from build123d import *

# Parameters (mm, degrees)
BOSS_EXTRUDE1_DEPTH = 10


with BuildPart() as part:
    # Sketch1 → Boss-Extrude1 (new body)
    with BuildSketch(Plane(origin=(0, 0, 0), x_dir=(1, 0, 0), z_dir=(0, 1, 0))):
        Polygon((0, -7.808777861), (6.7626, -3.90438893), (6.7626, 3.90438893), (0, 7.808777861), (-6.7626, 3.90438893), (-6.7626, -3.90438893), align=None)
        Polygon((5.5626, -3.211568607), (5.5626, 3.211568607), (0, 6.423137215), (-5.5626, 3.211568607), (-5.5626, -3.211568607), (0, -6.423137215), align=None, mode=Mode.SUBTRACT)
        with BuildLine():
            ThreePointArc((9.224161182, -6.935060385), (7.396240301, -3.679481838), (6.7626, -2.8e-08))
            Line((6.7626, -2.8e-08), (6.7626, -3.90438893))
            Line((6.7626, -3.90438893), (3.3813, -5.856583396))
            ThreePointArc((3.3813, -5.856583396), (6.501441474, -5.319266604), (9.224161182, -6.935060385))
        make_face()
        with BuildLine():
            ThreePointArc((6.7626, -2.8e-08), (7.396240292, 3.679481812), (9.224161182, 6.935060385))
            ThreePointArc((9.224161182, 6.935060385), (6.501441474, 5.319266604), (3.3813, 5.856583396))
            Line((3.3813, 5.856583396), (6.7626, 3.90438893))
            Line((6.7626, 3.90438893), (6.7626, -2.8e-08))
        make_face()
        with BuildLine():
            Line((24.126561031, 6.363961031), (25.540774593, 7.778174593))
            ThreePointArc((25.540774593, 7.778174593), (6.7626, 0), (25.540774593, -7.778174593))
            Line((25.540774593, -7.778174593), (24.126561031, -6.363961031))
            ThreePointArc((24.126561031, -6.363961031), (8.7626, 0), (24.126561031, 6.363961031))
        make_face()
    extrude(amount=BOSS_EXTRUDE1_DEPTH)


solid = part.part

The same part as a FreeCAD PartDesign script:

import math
import FreeCAD as App
import Part
import Sketcher
Q = App.Units.Quantity

doc = App.newDocument("Part")
params = doc.addObject("Spreadsheet::Sheet", "Params")
for row, (alias, value) in enumerate([
    ("sketch1_radius", "11 mm"),
    ("sketch1_radius2", "9 mm"),
    ("pad1_length", "10 mm"),
], start=1):
    params.set(f"A{row}", alias)
    params.set(f"B{row}", "=" + value)
    params.setAlias(f"B{row}", alias)

body = doc.addObject("PartDesign::Body", "Body")

# Sketch on XZ plane
sketch1 = doc.addObject("Sketcher::SketchObject", "Sketch")
body.addObject(sketch1)
sketch1.AttachmentSupport = (doc.XZ_Plane, [""])
sketch1.MapMode = "FlatFace"
sketch1.addGeometry([
    Part.LineSegment(App.Vector(0, 7.8, 0), App.Vector(3.4, 5.9, 0)),  # 0
    Part.ArcOfCircle(Part.Circle(App.Vector(5.7, 9.8, 0), App.Vector(0, 0, 1), 4.6), math.radians(-120), math.radians(-39)),  # 1
    Part.ArcOfCircle(Part.Circle(App.Vector(17.8, 0, 0), App.Vector(0, 0, 1), 11), math.radians(45), math.radians(141)),  # 2
    Part.LineSegment(App.Vector(25.5, 7.8, 0), App.Vector(24.1, 6.4, 0)),  # 3
    Part.ArcOfCircle(Part.Circle(App.Vector(17.8, 0, 0), App.Vector(0, 0, 1), 9), math.radians(45), math.radians(315)),  # 4
    Part.LineSegment(App.Vector(24.1, -6.4, 0), App.Vector(25.5, -7.8, 0)),  # 5
    Part.ArcOfCircle(Part.Circle(App.Vector(17.8, 0, 0), App.Vector(0, 0, 1), 11), math.radians(-141), math.radians(-45)),  # 6
    Part.ArcOfCircle(Part.Circle(App.Vector(5.7, -9.8, 0), App.Vector(0, 0, 1), 4.6), math.radians(39), math.radians(120)),  # 7
    Part.LineSegment(App.Vector(3.4, -5.9, 0), App.Vector(0, -7.8, 0)),  # 8
    Part.LineSegment(App.Vector(0, -7.8, 0), App.Vector(-6.8, -3.9, 0)),  # 9
    Part.LineSegment(App.Vector(-6.8, -3.9, 0), App.Vector(-6.8, 3.9, 0)),  # 10
    Part.LineSegment(App.Vector(-6.8, 3.9, 0), App.Vector(0, 7.8, 0)),  # 11
    Part.LineSegment(App.Vector(5.6, -3.2, 0), App.Vector(5.6, 3.2, 0)),  # 12
    Part.LineSegment(App.Vector(5.6, 3.2, 0), App.Vector(0, 6.4, 0)),  # 13
    Part.LineSegment(App.Vector(0, 6.4, 0), App.Vector(-5.6, 3.2, 0)),  # 14
    Part.LineSegment(App.Vector(-5.6, 3.2, 0), App.Vector(-5.6, -3.2, 0)),  # 15
    Part.LineSegment(App.Vector(-5.6, -3.2, 0), App.Vector(0, -6.4, 0)),  # 16
    Part.LineSegment(App.Vector(0, -6.4, 0), App.Vector(5.6, -3.2, 0)),  # 17
], False)
sketch1.addConstraint([
    Sketcher.Constraint("Tangent", 0, 2, 1, 1),
    Sketcher.Constraint("Tangent", 1, 2, 2, 2),
    Sketcher.Constraint("Coincident", 2, 1, 3, 1),
    Sketcher.Constraint("Coincident", 3, 2, 4, 1),
    Sketcher.Constraint("Coincident", 4, 2, 5, 1),
    Sketcher.Constraint("Coincident", 5, 2, 6, 2),
    Sketcher.Constraint("Tangent", 6, 1, 7, 1),
    Sketcher.Constraint("Tangent", 7, 2, 8, 1),
    Sketcher.Constraint("Coincident", 8, 2, 9, 1),
    Sketcher.Constraint("Coincident", 9, 2, 10, 1),
    Sketcher.Constraint("Coincident", 10, 2, 11, 1),
    Sketcher.Constraint("Coincident", 11, 2, 0, 1),
    Sketcher.Constraint("Coincident", 12, 2, 13, 1),
    Sketcher.Constraint("Coincident", 13, 2, 14, 1),
    Sketcher.Constraint("Coincident", 14, 2, 15, 1),
    Sketcher.Constraint("Coincident", 15, 2, 16, 1),
    Sketcher.Constraint("Coincident", 16, 2, 17, 1),
    Sketcher.Constraint("Coincident", 17, 2, 12, 1),
    Sketcher.Constraint("Vertical", 10),
    Sketcher.Constraint("Vertical", 12),
    Sketcher.Constraint("Vertical", 15),
    Sketcher.Constraint("Coincident", 4, 3, 2, 3),
    Sketcher.Constraint("Coincident", 6, 3, 2, 3),
    Sketcher.Constraint("Equal", 2, 6),
    Sketcher.Constraint("Equal", 1, 7),
    Sketcher.Constraint("Symmetric", 8, 2, 11, 2, -1, 1),
    Sketcher.Constraint("Symmetric", 12, 2, 15, 2, -1, 1),
    Sketcher.Constraint("Symmetric", 13, 2, 16, 2, -1, 1),
    Sketcher.Constraint("Symmetric", 1, 3, 7, 3, -1),
    Sketcher.Constraint("PointOnObject", 8, 2, -2),
    Sketcher.Constraint("PointOnObject", 13, 2, -2),
    Sketcher.Constraint("Perpendicular", 3, 5),
    Sketcher.Constraint("Parallel", 0, 9),
    Sketcher.Constraint("Parallel", 8, 11),
    Sketcher.Constraint("Parallel", 9, 13),
    Sketcher.Constraint("Parallel", 11, 14),
    Sketcher.Constraint("Parallel", 14, 17),
    Sketcher.Constraint("Vertical", 3, 2, 4, 2),
    Sketcher.Constraint("Vertical", 2, 1, 5, 2),
    Sketcher.Constraint("Radius", 2, 11.0),
    Sketcher.Constraint("Radius", 4, 9.0),
    Sketcher.Constraint("Angle", 0, Q("-30 deg")),
    Sketcher.Constraint("DistanceX", 10, 2, 14, 2, 1.2),
    Sketcher.Constraint("Radius", 1, 4.578249),
    Sketcher.Constraint("DistanceX", -1, 1, 2, 3, 17.7626),
    Sketcher.Constraint("DistanceX", -1, 1, 0, 2, 3.3813),
    Sketcher.Constraint("DistanceX", 9, 2, -1, 1, 6.7626),
    Sketcher.Constraint("DistanceX", 1, 2, 3, 2, 14.9024),
    Sketcher.Constraint("DistanceY", 12, 1, 12, 2, 6.423137),
])
sketch1.setExpression("Constraints[39]", "Params.sketch1_radius")
sketch1.setExpression("Constraints[40]", "Params.sketch1_radius2")
pad1 = doc.addObject("PartDesign::Pad", "Pad")
body.addObject(pad1)
pad1.Profile = sketch1
pad1.setExpression("Length", "Params.pad1_length")
pad1.Reversed = True

doc.recompute()
